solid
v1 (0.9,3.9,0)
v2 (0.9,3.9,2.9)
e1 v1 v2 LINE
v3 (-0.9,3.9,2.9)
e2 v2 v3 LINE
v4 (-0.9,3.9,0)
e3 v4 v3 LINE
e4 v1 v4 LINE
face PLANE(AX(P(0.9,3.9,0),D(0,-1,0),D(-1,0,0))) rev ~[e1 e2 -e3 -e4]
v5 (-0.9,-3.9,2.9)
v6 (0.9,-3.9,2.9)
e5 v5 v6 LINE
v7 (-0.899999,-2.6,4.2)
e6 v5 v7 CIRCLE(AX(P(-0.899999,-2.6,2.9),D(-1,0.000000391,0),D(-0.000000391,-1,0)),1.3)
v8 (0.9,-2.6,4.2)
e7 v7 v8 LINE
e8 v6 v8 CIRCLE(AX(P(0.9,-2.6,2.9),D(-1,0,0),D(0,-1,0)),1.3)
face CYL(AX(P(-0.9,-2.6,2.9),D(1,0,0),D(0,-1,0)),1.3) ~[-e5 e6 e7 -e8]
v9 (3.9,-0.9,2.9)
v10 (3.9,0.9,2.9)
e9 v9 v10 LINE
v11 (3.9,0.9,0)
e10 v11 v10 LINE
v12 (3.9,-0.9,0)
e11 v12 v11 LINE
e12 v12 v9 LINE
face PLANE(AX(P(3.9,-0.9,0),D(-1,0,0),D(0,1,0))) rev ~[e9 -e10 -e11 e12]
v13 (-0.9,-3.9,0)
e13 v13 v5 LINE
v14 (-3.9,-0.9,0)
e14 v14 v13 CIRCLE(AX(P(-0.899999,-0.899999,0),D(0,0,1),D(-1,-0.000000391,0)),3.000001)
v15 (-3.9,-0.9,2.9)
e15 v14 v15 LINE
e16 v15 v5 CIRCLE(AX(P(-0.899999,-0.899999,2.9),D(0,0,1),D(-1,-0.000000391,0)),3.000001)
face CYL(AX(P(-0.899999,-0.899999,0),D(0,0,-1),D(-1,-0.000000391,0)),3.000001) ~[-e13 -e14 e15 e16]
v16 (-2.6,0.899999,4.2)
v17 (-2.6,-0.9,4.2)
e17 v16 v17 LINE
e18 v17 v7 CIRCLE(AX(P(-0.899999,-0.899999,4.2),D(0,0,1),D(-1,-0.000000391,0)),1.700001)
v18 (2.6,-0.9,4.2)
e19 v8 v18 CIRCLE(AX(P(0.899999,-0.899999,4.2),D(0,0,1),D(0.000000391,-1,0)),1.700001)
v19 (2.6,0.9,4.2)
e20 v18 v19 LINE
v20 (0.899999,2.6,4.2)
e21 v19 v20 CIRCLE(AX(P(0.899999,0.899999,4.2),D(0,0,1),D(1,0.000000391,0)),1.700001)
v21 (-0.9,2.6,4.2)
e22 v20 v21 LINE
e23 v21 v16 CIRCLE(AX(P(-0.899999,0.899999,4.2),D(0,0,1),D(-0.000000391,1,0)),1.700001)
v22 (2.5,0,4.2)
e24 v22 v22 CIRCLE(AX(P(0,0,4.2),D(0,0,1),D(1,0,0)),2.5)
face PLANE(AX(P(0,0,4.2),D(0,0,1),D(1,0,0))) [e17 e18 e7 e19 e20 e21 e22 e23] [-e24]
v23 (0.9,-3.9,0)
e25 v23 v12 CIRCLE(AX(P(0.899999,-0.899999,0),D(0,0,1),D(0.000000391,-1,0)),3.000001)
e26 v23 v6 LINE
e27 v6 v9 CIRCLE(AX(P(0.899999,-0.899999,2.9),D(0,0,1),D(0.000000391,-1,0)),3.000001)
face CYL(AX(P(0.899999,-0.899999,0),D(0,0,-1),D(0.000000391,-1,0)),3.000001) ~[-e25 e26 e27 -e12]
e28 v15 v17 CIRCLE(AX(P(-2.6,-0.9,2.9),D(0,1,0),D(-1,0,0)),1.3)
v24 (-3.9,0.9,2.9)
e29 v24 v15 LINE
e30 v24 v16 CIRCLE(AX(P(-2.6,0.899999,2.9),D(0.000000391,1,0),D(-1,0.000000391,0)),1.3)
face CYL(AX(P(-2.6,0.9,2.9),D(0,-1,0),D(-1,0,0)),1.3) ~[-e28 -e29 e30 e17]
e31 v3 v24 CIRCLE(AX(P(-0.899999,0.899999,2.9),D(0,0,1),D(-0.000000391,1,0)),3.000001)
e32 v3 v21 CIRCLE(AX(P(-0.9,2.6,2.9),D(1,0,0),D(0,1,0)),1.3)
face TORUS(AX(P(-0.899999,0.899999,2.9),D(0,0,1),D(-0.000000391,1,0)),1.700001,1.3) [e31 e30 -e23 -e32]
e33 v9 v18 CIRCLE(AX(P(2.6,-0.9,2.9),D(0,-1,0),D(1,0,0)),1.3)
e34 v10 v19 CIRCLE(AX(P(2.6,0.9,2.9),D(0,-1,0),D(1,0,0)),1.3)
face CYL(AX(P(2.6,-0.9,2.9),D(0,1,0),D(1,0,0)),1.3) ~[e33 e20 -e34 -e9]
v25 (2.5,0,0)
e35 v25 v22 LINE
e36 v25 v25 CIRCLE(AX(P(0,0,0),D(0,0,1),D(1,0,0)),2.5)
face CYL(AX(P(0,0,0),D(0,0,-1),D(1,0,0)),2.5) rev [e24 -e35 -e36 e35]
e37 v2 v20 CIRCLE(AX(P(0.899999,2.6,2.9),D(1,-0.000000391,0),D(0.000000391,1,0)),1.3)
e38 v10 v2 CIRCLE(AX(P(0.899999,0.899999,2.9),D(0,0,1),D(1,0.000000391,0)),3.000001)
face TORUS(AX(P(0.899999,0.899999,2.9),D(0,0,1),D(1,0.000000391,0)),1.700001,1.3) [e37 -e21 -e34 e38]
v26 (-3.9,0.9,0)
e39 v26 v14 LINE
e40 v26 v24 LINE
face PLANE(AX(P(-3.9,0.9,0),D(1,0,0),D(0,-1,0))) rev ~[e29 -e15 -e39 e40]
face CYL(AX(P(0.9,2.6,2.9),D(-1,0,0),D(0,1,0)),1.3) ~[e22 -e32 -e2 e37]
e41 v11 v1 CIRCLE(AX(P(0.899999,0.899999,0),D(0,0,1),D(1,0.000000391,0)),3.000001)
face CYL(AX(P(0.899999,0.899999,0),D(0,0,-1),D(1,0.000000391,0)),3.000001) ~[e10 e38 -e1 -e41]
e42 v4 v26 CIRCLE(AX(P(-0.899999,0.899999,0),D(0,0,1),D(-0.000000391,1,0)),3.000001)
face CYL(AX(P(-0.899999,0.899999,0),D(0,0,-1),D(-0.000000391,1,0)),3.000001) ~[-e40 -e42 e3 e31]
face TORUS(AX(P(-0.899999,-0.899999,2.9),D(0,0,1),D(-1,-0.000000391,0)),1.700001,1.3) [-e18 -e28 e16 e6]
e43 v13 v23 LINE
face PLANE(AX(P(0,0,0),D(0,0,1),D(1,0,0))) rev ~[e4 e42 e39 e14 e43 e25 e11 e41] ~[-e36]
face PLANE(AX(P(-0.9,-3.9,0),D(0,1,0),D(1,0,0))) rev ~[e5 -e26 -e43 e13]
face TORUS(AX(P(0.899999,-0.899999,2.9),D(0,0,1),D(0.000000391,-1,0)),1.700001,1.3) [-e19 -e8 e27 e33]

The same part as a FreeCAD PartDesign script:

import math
import FreeCAD as App
import Part
import Sketcher
from FreeCAD import Vector
Q = App.Units.Quantity


def edges_at(feature, points):
    """Names of the edges that pass closest to the given points."""
    edges = feature.Shape.Edges
    near = lambda p: min(range(len(edges)), key=lambda i: edges[i].distToShape(Part.Vertex(*p))[0])
    return sorted({f"Edge{near(p) + 1}" for p in points})

doc = App.newDocument("Part")
body = doc.addObject("PartDesign::Body", "Body")

# Sketch on XY plane
sketch1 = body.newObject("Sketcher::SketchObject", "Sketch")
sketch1.AttachmentSupport = (doc.getObject("XY_Plane"), [""])
sketch1.MapMode = "FlatFace"
sketch1.addGeometry(Part.LineSegment(Vector(-3.9, 0.9, 0), Vector(-3.9, -0.9, 0)), False)
sketch1.addGeometry(Part.ArcOfCircle(Part.Circle(Vector(-0.899999, -0.899999, 0), Vector(0, 0, 1), 3.000001), math.radians(-179.999978), math.radians(-90.000022)), False)
sketch1.addGeometry(Part.LineSegment(Vector(-0.9, -3.9, 0), Vector(0.9, -3.9, 0)), False)
sketch1.addGeometry(Part.ArcOfCircle(Part.Circle(Vector(0.899999, -0.899999, 0), Vector(0, 0, 1), 3.000001), math.radians(-89.999978), math.radians(-0.000022)), False)
sketch1.addGeometry(Part.LineSegment(Vector(3.9, -0.9, 0), Vector(3.9, 0.9, 0)), False)
sketch1.addGeometry(Part.ArcOfCircle(Part.Circle(Vector(0.899999, 0.899999, 0), Vector(0, 0, 1), 3.000001), math.radians(0.000022), math.radians(89.999978)), False)
sketch1.addGeometry(Part.LineSegment(Vector(0.9, 3.9, 0), Vector(-0.9, 3.9, 0)), False)
sketch1.addGeometry(Part.ArcOfCircle(Part.Circle(Vector(-0.899999, 0.899999, 0), Vector(0, 0, 1), 3.000001), math.radians(90.000022), math.radians(179.999978)), False)
sketch1.addGeometry(Part.Circle(Vector(0, 0, 0), Vector(0, 0, 1), 2.5), False)
sketch1.addConstraint(Sketcher.Constraint("Tangent", 0, 2, 1, 1))
sketch1.addConstraint(Sketcher.Constraint("Tangent", 1, 2, 2, 1))
sketch1.addConstraint(Sketcher.Constraint("Tangent", 2, 2, 3, 1))
sketch1.addConstraint(Sketcher.Constraint("Tangent", 3, 2, 4, 1))
sketch1.addConstraint(Sketcher.Constraint("Tangent", 4, 2, 5, 1))
sketch1.addConstraint(Sketcher.Constraint("Tangent", 5, 2, 6, 1))
sketch1.addConstraint(Sketcher.Constraint("Tangent", 6, 2, 7, 1))
sketch1.addConstraint(Sketcher.Constraint("Tangent", 7, 2, 0, 1))
sketch1.addConstraint(Sketcher.Constraint("Vertical", 0))
sketch1.addConstraint(Sketcher.Constraint("Horizontal", 2))
sketch1.addConstraint(Sketcher.Constraint("Vertical", 4))
sketch1.addConstraint(Sketcher.Constraint("Horizontal", 6))
sketch1.addConstraint(Sketcher.Constraint("Coincident", 8, 3, -1, 1))
sketch1.addConstraint(Sketcher.Constraint("Equal", 1, 3))
sketch1.addConstraint(Sketcher.Constraint("Equal", 3, 5))
sketch1.addConstraint(Sketcher.Constraint("Equal", 5, 7))
sketch1.addConstraint(Sketcher.Constraint("Symmetric", 1, 3, 5, 3, -1, 1))
sketch1.addConstraint(Sketcher.Constraint("Equal", 6, 0))
sketch1.addConstraint(Sketcher.Constraint("Diameter", 8, Q("5 mm")))
sketch1.addConstraint(Sketcher.Constraint("Radius", 1, Q("3.000001 mm")))
sketch1.addConstraint(Sketcher.Constraint("DistanceX", 2, 1, 2, 2, Q("1.8 mm")))
pad1 = body.newObject("PartDesign::Pad", "Pad")
pad1.Profile = sketch1
pad1.Length = 4.2
doc.recompute()

fillet = body.newObject("PartDesign::Fillet", "Fillet")
fillet.Base = (pad1, edges_at(pad1, [(3.9, 0, 4.2)]))
fillet.Radius = 1.3

doc.recompute()
